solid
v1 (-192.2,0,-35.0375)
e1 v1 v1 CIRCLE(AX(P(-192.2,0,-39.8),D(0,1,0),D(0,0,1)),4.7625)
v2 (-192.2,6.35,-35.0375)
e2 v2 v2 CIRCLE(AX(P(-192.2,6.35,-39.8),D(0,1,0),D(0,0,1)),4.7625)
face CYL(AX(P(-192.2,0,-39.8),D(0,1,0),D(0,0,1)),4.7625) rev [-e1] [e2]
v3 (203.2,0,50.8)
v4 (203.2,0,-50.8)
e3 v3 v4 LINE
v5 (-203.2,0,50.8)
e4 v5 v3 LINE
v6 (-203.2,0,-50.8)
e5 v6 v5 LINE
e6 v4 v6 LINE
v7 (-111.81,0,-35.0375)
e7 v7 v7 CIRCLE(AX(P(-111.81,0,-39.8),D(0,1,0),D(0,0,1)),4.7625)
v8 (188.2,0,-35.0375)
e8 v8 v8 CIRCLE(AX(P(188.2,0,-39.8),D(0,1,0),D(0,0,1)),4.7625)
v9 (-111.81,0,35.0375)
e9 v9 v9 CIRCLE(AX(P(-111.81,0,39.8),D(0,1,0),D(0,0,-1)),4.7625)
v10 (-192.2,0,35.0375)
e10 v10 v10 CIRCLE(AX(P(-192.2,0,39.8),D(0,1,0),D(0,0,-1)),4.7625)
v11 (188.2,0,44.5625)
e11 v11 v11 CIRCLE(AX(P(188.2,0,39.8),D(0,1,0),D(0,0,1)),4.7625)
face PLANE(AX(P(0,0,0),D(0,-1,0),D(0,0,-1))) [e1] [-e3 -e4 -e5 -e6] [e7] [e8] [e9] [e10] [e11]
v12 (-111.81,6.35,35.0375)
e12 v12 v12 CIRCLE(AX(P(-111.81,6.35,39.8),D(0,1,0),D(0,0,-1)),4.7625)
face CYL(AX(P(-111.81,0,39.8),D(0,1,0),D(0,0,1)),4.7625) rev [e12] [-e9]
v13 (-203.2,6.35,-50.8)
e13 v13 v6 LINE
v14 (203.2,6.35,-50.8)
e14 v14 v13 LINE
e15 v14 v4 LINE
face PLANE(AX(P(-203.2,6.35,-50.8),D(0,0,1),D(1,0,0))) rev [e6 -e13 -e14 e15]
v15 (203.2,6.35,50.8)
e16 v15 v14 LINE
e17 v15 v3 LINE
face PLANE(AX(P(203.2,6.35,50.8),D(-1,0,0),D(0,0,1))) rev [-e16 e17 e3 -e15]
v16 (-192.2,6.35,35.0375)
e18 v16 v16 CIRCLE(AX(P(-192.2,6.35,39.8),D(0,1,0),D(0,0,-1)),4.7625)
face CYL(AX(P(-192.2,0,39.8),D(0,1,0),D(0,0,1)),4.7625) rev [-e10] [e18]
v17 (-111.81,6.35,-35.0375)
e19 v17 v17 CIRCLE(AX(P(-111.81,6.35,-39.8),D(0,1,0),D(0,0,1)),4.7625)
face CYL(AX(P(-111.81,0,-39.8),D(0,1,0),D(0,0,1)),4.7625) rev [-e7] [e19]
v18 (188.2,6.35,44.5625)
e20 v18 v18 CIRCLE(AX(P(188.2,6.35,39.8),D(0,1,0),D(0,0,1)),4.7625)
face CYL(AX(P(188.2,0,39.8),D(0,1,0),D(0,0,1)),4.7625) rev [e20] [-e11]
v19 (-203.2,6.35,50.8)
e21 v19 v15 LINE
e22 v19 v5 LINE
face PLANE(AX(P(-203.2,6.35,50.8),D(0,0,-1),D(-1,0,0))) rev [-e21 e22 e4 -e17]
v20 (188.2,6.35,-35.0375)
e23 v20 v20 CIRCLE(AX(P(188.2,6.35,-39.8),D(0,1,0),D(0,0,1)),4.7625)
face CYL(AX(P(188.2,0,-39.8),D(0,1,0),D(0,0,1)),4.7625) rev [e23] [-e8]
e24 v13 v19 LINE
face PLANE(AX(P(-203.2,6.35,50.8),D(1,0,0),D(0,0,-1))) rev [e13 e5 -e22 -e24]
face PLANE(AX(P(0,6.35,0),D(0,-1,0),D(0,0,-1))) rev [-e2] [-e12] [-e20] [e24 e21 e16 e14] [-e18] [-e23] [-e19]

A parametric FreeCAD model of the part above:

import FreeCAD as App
import Part
import Sketcher

V = App.Vector
Q = App.Units.Quantity

doc = App.newDocument("Part")
params = doc.addObject("Spreadsheet::Sheet", "Params")
for row, (alias, value) in enumerate([
    ("sketch1_width", "16 in"),
    ("sketch1_height", "4 in"),
    ("pad1_length", "0.25 in"),
    ("sketch2_diameter", "0.375 in"),
    ("pocket1_length", "0.25 in"),
], start=1):
    params.set(f"A{row}", alias)
    params.set(f"B{row}", "=" + value)
    params.setAlias(f"B{row}", alias)

body = doc.addObject("PartDesign::Body", "Body")

sketch1 = body.newObject("Sketcher::SketchObject", "Sketch")
sketch1.AttachmentSupport = (doc.getObject("XZ_Plane"), [""])
sketch1.MapMode = "FlatFace"
sketch1.addGeometry(Part.LineSegment(V(-203, -51, 0), V(-203, 51, 0)), False)
sketch1.addGeometry(Part.LineSegment(V(-203, 51, 0), V(203, 51, 0)), False)
sketch1.addGeometry(Part.LineSegment(V(203, 51, 0), V(203, -51, 0)), False)
sketch1.addGeometry(Part.LineSegment(V(203, -51, 0), V(-203, -51, 0)), False)
sketch1.addConstraint(Sketcher.Constraint("Coincident", 0, 2, 1, 1))
sketch1.addConstraint(Sketcher.Constraint("Coincident", 1, 2, 2, 1))
sketch1.addConstraint(Sketcher.Constraint("Coincident", 2, 2, 3, 1))
sketch1.addConstraint(Sketcher.Constraint("Coincident", 3, 2, 0, 1))
sketch1.addConstraint(Sketcher.Constraint("Vertical", 0))
sketch1.addConstraint(Sketcher.Constraint("Horizontal", 1))
sketch1.addConstraint(Sketcher.Constraint("Vertical", 2))
sketch1.addConstraint(Sketcher.Constraint("Horizontal", 3))
sketch1.addConstraint(Sketcher.Constraint("Symmetric", 0, 2, 2, 2, -1, 1))
sketch1.addConstraint(Sketcher.Constraint("DistanceX", 1, 1, 1, 2, Q("16 in")))
sketch1.addConstraint(Sketcher.Constraint("DistanceY", 0, 1, 0, 2, Q("4 in")))
sketch1.setExpression("Constraints[9]", "Params.sketch1_width")
sketch1.setExpression("Constraints[10]", "Params.sketch1_height")
pad1 = body.newObject("PartDesign::Pad", "Pad")
pad1.Profile = sketch1
pad1.setExpression("Length", "Params.pad1_length")
pad1.Reversed = True

sketch2 = body.newObject("Sketcher::SketchObject", "Sketch001")
sketch2.AttachmentSupport = (doc.getObject("XZ_Plane"), [""])
sketch2.MapMode = "FlatFace"
sketch2.AttachmentOffset = App.Placement(V(0, 0, -0.25 * 25.4), App.Rotation())
sketch2.addGeometry(Part.Circle(V(-192.2, -39.8, 0), V(0, 0, 1), 4.8), False)
sketch2.addGeometry(Part.Circle(V(188.2, -39.8, 0), V(0, 0, 1), 4.8), False)
sketch2.addGeometry(Part.Circle(V(188.2, 39.8, 0), V(0, 0, 1), 4.8), False)
sketch2.addGeometry(Part.Circle(V(-192.2, 39.8, 0), V(0, 0, 1), 4.8), False)
sketch2.addGeometry(Part.Circle(V(-111.8, -39.8, 0), V(0, 0, 1), 4.8), False)
sketch2.addGeometry(Part.Circle(V(-111.8, 39.8, 0), V(0, 0, 1), 4.8), False)
sketch2.addConstraint(Sketcher.Constraint("Equal", 0, 1))
sketch2.addConstraint(Sketcher.Constraint("Equal", 1, 2))
sketch2.addConstraint(Sketcher.Constraint("Equal", 2, 3))
sketch2.addConstraint(Sketcher.Constraint("Equal", 3, 4))
sketch2.addConstraint(Sketcher.Constraint("Equal", 4, 5))
sketch2.addConstraint(Sketcher.Constraint("Symmetric", 1, 3, 2, 3, -1))
sketch2.addConstraint(Sketcher.Constraint("Symmetric", 0, 3, 3, 3, -1))
sketch2.addConstraint(Sketcher.Constraint("Symmetric", 4, 3, 5, 3, -1))
sketch2.addConstraint(Sketcher.Constraint("Horizontal", 0, 3, 1, 3))
sketch2.addConstraint(Sketcher.Constraint("Horizontal", 1, 3, 4, 3))
sketch2.addConstraint(Sketcher.Constraint("Diameter", 0, Q("0.375 in")))
sketch2.addConstraint(Sketcher.Constraint("DistanceX", 0, 3, -1, 1, 192.2))
sketch2.addConstraint(Sketcher.Constraint("DistanceY", 0, 3, -1, 1, 39.8))
sketch2.addConstraint(Sketcher.Constraint("DistanceX", -1, 1, 1, 3, 188.2))
sketch2.addConstraint(Sketcher.Constraint("DistanceX", 4, 3, -1, 1, 111.81))
sketch2.setExpression("Constraints[10]", "Params.sketch2_diameter")
pocket1 = body.newObject("PartDesign::Pocket", "Pocket")
pocket1.Profile = sketch2
pocket1.setExpression("Length", "Params.pocket1_length")
pocket1.Reversed = True

doc.recompute()
